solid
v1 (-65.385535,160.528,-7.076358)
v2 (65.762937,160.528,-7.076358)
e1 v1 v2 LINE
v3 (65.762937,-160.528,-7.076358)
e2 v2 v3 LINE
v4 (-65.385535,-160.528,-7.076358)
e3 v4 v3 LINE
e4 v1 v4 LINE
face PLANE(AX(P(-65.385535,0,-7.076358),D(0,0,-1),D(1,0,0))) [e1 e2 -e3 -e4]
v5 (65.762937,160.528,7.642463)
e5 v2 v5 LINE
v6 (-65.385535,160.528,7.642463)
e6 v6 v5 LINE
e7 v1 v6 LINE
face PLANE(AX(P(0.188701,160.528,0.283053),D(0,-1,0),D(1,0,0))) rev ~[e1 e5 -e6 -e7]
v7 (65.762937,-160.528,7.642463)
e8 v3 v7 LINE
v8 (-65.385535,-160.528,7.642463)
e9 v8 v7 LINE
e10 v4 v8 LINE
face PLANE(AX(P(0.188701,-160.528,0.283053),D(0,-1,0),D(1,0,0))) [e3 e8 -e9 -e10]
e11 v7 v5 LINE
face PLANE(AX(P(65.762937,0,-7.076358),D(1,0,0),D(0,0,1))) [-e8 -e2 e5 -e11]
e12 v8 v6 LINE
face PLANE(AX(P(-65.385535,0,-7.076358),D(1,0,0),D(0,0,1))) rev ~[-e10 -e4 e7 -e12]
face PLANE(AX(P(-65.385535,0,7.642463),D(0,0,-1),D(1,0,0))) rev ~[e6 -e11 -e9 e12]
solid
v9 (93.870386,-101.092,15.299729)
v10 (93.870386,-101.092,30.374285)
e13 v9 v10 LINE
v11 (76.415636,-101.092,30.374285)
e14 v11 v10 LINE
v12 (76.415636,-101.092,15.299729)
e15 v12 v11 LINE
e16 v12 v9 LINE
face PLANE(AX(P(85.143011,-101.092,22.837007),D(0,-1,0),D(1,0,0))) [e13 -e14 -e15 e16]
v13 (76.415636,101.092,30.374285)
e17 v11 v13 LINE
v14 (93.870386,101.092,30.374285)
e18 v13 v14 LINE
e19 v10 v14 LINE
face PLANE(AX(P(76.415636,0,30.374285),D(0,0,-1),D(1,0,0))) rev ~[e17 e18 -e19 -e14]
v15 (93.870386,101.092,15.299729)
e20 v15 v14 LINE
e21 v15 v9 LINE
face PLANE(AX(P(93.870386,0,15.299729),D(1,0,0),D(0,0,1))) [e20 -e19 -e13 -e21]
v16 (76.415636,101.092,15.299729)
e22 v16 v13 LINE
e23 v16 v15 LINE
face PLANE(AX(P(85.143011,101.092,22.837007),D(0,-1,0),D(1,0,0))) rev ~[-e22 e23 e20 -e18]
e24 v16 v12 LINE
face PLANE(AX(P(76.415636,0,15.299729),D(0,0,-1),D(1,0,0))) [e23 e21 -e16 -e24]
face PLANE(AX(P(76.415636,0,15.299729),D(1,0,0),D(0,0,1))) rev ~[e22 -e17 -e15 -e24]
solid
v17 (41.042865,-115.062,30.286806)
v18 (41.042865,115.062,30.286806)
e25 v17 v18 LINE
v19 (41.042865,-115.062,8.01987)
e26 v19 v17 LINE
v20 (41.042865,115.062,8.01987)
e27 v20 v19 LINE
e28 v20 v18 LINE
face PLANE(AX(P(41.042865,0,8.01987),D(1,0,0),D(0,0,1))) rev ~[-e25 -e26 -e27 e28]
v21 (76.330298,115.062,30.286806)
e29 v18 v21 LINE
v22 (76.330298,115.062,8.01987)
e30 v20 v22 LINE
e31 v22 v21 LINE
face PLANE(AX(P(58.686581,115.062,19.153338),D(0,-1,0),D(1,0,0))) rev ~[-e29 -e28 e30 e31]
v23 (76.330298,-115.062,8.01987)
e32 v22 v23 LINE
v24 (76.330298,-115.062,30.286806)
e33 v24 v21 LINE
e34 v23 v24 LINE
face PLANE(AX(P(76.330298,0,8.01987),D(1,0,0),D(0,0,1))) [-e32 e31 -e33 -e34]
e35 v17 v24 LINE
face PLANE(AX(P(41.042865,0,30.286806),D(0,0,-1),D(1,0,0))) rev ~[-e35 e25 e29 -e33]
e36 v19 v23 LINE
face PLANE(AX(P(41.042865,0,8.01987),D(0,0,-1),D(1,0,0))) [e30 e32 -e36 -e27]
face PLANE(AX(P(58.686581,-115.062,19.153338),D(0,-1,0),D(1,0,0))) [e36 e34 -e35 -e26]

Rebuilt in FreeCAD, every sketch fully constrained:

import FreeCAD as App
import Part
import Sketcher
Q = App.Units.Quantity


def add_polygon(sketch, points):
    """Adds a closed chain of lines whose ends are joined by coincident constraints."""
    first, n = sketch.GeometryCount, len(points)
    for a, b in zip(points, points[1:] + points[:1]):
        sketch.addGeometry(Part.LineSegment(App.Vector(*a, 0), App.Vector(*b, 0)), False)
    for i in range(n):
        sketch.addConstraint(Sketcher.Constraint("Coincident", first + i, 2, first + (i + 1) % n, 1))

doc = App.newDocument("Part")
body = doc.addObject("PartDesign::Body", "Body")

sketch1 = body.newObject("Sketcher::SketchObject", "Sketch")
sketch1.AttachmentSupport = (doc.getObject("XZ_Plane"), [""])
sketch1.MapMode = "FlatFace"
add_polygon(sketch1, [(-65, 8), (-65, -7), (66, -7), (66, 8)])
sketch1.addConstraint(Sketcher.Constraint("Vertical", 0))
sketch1.addConstraint(Sketcher.Constraint("Horizontal", 1))
sketch1.addConstraint(Sketcher.Constraint("Vertical", 2))
sketch1.addConstraint(Sketcher.Constraint("Horizontal", 3))
sketch1.addConstraint(Sketcher.Constraint("DistanceX", 1, 1, 1, 2, 131.148472))
sketch1.addConstraint(Sketcher.Constraint("DistanceY", 0, 2, 0, 1, 14.718821))
sketch1.addConstraint(Sketcher.Constraint("DistanceX", 0, 2, -1, 1, 65.385535))
sketch1.addConstraint(Sketcher.Constraint("DistanceY", 0, 2, -1, 1, 7.076358))
pad1 = body.newObject("PartDesign::Pad", "Pad")
pad1.Profile = sketch1
pad1.Length = Q("12.64 in")
pad1.Midplane = True
body2 = doc.addObject("PartDesign::Body", "Body001")

sketch2 = body2.newObject("Sketcher::SketchObject", "Sketch001")
sketch2.AttachmentSupport = (doc.getObject("XZ_Plane001"), [""])
sketch2.MapMode = "FlatFace"
add_polygon(sketch2, [(41, 30), (41, 8), (76, 8), (76, 30)])
sketch2.addConstraint(Sketcher.Constraint("Vertical", 0))
sketch2.addConstraint(Sketcher.Constraint("Horizontal", 1))
sketch2.addConstraint(Sketcher.Constraint("Vertical", 2))
sketch2.addConstraint(Sketcher.Constraint("Horizontal", 3))
sketch2.addConstraint(Sketcher.Constraint("DistanceX", 1, 1, 1, 2, 35.287433))
sketch2.addConstraint(Sketcher.Constraint("DistanceY", 0, 2, 0, 1, 22.266936))
sketch2.addConstraint(Sketcher.Constraint("DistanceY", -1, 1, 0, 2, 8.01987))
sketch2.addConstraint(Sketcher.Constraint("DistanceX", -1, 1, 0, 2, 41.042865))
pad2 = body2.newObject("PartDesign::Pad", "Pad001")
pad2.Profile = sketch2
pad2.Length = Q("9.06 in")
pad2.Midplane = True
body3 = doc.addObject("PartDesign::Body", "Body002")

sketch3 = body3.newObject("Sketcher::SketchObject", "Sketch002")
sketch3.AttachmentSupport = (doc.getObject("XZ_Plane002"), [""])
sketch3.MapMode = "FlatFace"
add_polygon(sketch3, [(76, 30), (76, 15), (94, 15), (94, 30)])
sketch3.addConstraint(Sketcher.Constraint("Vertical", 0))
sketch3.addConstraint(Sketcher.Constraint("Horizontal", 1))
sketch3.addConstraint(Sketcher.Constraint("Vertical", 2))
sketch3.addConstraint(Sketcher.Constraint("Horizontal", 3))
sketch3.addConstraint(Sketcher.Constraint("DistanceX", 1, 1, 1, 2, 17.45475))
sketch3.addConstraint(Sketcher.Constraint("DistanceY", 0, 2, 0, 1, 15.074555))
sketch3.addConstraint(Sketcher.Constraint("DistanceY", -1, 1, 0, 2, 15.299729))
sketch3.addConstraint(Sketcher.Constraint("DistanceX", -1, 1, 0, 2, 76.415636))
pad3 = body3.newObject("PartDesign::Pad", "Pad002")
pad3.Profile = sketch3
pad3.Length = Q("7.96 in")
pad3.Midplane = True

doc.recompute()
